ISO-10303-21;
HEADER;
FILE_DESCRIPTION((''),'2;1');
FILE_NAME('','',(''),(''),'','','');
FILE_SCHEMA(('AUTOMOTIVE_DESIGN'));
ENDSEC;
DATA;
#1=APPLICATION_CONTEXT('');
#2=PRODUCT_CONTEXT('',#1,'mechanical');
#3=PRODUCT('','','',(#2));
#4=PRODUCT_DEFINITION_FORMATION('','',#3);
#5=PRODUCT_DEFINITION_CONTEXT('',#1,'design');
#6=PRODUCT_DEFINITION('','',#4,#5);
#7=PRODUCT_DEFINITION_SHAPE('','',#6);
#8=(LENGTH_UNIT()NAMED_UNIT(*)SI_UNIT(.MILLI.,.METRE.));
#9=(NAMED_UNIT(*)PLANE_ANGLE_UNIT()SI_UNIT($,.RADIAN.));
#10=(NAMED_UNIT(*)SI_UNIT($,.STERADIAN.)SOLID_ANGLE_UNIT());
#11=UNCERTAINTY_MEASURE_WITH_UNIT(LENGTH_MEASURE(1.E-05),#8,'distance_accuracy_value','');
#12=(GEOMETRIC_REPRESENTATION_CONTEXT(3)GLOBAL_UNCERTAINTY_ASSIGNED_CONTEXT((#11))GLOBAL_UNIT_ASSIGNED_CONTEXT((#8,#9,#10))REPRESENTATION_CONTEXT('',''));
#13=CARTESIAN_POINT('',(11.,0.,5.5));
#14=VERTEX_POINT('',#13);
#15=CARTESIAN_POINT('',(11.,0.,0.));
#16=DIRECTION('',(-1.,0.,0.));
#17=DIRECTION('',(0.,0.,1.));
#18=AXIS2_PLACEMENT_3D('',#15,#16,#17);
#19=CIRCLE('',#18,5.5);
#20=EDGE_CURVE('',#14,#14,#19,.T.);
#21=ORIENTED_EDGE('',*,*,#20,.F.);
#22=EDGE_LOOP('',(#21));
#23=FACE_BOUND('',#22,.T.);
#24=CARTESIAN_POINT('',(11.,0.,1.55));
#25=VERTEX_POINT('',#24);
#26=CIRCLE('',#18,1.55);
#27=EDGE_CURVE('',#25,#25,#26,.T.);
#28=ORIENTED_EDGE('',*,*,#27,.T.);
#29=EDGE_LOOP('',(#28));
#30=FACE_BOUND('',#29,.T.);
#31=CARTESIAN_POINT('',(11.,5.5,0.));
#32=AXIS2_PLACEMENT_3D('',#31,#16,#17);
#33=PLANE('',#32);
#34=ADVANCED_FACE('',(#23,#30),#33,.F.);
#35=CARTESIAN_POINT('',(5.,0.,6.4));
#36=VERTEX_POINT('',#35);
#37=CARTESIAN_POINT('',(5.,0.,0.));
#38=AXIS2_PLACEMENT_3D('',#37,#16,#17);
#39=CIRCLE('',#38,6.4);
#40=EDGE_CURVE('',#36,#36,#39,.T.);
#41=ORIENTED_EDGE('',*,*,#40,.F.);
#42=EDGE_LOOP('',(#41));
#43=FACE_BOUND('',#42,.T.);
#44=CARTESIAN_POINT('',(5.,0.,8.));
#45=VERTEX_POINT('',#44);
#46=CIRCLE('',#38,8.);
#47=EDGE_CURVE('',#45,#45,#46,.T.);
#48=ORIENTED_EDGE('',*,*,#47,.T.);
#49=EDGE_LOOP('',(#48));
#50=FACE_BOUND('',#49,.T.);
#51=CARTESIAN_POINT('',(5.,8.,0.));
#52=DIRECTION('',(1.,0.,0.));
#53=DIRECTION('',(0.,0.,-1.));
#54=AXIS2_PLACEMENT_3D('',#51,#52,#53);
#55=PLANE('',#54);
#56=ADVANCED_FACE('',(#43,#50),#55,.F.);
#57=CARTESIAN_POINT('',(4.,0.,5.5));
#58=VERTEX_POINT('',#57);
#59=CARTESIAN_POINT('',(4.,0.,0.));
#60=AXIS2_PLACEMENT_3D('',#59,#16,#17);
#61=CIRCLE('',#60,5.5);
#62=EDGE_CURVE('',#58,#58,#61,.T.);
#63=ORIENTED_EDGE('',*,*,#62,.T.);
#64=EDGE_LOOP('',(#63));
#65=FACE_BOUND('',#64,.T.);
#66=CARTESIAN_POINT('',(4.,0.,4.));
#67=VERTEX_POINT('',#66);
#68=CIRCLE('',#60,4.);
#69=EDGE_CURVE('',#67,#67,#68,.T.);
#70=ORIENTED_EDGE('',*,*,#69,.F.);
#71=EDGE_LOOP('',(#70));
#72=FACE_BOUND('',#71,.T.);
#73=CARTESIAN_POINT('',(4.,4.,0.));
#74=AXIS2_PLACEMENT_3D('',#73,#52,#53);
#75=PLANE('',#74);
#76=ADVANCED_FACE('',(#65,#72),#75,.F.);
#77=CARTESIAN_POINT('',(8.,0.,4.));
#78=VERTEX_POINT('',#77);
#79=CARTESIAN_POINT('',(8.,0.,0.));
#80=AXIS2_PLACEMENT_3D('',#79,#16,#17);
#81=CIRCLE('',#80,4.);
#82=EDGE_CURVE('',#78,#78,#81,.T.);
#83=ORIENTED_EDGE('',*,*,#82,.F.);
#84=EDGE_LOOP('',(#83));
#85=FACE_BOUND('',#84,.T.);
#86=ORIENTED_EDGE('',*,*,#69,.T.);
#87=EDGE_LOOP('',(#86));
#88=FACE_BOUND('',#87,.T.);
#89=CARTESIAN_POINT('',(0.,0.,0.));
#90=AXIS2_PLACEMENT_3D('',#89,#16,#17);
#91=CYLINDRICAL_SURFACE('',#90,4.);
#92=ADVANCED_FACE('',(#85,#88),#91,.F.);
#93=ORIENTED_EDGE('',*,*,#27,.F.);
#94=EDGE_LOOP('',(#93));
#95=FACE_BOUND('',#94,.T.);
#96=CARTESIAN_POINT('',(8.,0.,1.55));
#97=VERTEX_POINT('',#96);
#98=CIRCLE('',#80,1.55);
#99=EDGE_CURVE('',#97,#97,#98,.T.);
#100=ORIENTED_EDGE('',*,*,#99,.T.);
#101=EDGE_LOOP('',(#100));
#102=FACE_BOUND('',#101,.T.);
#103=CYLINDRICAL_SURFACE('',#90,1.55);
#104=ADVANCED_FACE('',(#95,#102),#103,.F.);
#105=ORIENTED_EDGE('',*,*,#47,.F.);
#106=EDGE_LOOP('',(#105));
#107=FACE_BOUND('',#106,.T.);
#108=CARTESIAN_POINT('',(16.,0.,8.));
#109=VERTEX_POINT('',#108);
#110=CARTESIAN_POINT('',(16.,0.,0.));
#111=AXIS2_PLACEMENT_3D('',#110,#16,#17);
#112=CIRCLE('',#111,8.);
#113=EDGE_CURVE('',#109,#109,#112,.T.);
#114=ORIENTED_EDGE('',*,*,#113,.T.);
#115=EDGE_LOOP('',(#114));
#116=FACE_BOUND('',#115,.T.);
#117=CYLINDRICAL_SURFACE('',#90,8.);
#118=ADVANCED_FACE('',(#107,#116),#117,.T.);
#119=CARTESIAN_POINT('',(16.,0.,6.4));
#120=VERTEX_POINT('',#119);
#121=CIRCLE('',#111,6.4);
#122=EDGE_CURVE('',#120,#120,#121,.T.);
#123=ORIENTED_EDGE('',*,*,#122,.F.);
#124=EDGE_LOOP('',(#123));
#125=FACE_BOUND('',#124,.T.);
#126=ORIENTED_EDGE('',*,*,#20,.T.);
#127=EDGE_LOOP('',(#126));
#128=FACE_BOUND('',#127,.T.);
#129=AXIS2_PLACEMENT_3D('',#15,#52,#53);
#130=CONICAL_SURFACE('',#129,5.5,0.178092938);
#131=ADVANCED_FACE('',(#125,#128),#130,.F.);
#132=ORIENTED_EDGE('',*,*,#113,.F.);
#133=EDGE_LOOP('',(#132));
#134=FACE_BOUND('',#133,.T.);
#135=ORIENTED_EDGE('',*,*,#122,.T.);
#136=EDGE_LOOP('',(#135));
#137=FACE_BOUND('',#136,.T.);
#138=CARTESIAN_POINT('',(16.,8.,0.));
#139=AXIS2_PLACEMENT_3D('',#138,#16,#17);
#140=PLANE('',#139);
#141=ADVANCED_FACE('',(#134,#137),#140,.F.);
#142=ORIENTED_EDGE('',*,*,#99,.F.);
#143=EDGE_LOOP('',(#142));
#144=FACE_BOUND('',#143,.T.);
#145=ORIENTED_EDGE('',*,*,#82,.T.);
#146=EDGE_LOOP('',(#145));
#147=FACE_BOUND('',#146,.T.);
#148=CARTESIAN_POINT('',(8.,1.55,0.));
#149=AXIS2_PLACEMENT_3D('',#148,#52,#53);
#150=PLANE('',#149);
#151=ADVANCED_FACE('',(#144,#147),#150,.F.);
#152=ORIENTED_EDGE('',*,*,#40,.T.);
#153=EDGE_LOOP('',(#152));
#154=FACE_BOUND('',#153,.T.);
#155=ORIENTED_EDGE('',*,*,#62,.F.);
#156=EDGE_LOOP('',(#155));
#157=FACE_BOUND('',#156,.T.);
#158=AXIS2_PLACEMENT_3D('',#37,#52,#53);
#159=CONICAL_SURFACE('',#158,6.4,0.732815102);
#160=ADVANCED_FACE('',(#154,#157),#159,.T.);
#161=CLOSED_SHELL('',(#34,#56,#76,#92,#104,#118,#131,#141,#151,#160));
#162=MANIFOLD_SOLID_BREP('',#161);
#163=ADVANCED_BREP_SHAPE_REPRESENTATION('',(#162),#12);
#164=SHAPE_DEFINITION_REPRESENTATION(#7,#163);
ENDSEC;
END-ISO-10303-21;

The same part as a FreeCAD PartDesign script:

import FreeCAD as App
import Part
import Sketcher
Q = App.Units.Quantity


def add_polygon(sketch, points):
    """Adds a closed chain of lines whose ends are joined by coincident constraints."""
    first, n = sketch.GeometryCount, len(points)
    for a, b in zip(points, points[1:] + points[:1]):
        sketch.addGeometry(Part.LineSegment(App.Vector(*a, 0), App.Vector(*b, 0)), False)
    for i in range(n):
        sketch.addConstraint(Sketcher.Constraint("Coincident", first + i, 2, first + (i + 1) % n, 1))

doc = App.newDocument("Part")
body = doc.addObject("PartDesign::Body", "Body")

# Sketch on XY plane
sketch1 = body.newObject("Sketcher::SketchObject", "Sketch")
sketch1.AttachmentSupport = (doc.getObject("XY_Plane"), [""])
sketch1.MapMode = "FlatFace"
add_polygon(sketch1, [(8, 1.6), (11, 1.6), (11, 5.5), (16, 6.4), (16, 8), (5, 8), (5, 6.4), (4, 5.5), (4, 4), (8, 4)])  # lines 0-9
sketch1.addConstraint(Sketcher.Constraint("Horizontal", 0))
sketch1.addConstraint(Sketcher.Constraint("Vertical", 1))
sketch1.addConstraint(Sketcher.Constraint("Vertical", 3))
sketch1.addConstraint(Sketcher.Constraint("Horizontal", 4))
sketch1.addConstraint(Sketcher.Constraint("Vertical", 5))
sketch1.addConstraint(Sketcher.Constraint("Vertical", 7))
sketch1.addConstraint(Sketcher.Constraint("Horizontal", 8))
sketch1.addConstraint(Sketcher.Constraint("Vertical", 9))
sketch1.addConstraint(Sketcher.Constraint("Horizontal", 2, 2, 5, 2))
sketch1.addConstraint(Sketcher.Constraint("Horizontal", 1, 2, 6, 2))
sketch1.addConstraint(Sketcher.Constraint("DistanceX", 0, 1, 0, 2, Q("3 mm")))
sketch1.addConstraint(Sketcher.Constraint("DistanceX", 4, 2, 4, 1, Q("11 mm")))
sketch1.addConstraint(Sketcher.Constraint("DistanceX", 8, 1, 8, 2, Q("4 mm")))
sketch1.addConstraint(Sketcher.Constraint("DistanceY", 3, 1, 3, 2, Q("1.6 mm")))
sketch1.addConstraint(Sketcher.Constraint("DistanceY", 7, 2, 7, 1, Q("1.5 mm")))
sketch1.addConstraint(Sketcher.Constraint("DistanceX", -1, 1, 0, 2, Q("11 mm")))
sketch1.addConstraint(Sketcher.Constraint("DistanceX", -1, 1, 2, 2, Q("16 mm")))
sketch1.addConstraint(Sketcher.Constraint("DistanceY", -1, 1, 3, 2, Q("8 mm")))
sketch1.addConstraint(Sketcher.Constraint("DistanceY", -1, 1, 7, 2, Q("4 mm")))
sketch1.addConstraint(Sketcher.Constraint("DistanceY", 1, 1, 1, 2, Q("3.95 mm")))
revolution = body.newObject("PartDesign::Revolution", "Revolution")
revolution.Profile = sketch1
revolution.ReferenceAxis = (sketch1, ["H_Axis"])
revolution.Angle = 360

doc.recompute()
